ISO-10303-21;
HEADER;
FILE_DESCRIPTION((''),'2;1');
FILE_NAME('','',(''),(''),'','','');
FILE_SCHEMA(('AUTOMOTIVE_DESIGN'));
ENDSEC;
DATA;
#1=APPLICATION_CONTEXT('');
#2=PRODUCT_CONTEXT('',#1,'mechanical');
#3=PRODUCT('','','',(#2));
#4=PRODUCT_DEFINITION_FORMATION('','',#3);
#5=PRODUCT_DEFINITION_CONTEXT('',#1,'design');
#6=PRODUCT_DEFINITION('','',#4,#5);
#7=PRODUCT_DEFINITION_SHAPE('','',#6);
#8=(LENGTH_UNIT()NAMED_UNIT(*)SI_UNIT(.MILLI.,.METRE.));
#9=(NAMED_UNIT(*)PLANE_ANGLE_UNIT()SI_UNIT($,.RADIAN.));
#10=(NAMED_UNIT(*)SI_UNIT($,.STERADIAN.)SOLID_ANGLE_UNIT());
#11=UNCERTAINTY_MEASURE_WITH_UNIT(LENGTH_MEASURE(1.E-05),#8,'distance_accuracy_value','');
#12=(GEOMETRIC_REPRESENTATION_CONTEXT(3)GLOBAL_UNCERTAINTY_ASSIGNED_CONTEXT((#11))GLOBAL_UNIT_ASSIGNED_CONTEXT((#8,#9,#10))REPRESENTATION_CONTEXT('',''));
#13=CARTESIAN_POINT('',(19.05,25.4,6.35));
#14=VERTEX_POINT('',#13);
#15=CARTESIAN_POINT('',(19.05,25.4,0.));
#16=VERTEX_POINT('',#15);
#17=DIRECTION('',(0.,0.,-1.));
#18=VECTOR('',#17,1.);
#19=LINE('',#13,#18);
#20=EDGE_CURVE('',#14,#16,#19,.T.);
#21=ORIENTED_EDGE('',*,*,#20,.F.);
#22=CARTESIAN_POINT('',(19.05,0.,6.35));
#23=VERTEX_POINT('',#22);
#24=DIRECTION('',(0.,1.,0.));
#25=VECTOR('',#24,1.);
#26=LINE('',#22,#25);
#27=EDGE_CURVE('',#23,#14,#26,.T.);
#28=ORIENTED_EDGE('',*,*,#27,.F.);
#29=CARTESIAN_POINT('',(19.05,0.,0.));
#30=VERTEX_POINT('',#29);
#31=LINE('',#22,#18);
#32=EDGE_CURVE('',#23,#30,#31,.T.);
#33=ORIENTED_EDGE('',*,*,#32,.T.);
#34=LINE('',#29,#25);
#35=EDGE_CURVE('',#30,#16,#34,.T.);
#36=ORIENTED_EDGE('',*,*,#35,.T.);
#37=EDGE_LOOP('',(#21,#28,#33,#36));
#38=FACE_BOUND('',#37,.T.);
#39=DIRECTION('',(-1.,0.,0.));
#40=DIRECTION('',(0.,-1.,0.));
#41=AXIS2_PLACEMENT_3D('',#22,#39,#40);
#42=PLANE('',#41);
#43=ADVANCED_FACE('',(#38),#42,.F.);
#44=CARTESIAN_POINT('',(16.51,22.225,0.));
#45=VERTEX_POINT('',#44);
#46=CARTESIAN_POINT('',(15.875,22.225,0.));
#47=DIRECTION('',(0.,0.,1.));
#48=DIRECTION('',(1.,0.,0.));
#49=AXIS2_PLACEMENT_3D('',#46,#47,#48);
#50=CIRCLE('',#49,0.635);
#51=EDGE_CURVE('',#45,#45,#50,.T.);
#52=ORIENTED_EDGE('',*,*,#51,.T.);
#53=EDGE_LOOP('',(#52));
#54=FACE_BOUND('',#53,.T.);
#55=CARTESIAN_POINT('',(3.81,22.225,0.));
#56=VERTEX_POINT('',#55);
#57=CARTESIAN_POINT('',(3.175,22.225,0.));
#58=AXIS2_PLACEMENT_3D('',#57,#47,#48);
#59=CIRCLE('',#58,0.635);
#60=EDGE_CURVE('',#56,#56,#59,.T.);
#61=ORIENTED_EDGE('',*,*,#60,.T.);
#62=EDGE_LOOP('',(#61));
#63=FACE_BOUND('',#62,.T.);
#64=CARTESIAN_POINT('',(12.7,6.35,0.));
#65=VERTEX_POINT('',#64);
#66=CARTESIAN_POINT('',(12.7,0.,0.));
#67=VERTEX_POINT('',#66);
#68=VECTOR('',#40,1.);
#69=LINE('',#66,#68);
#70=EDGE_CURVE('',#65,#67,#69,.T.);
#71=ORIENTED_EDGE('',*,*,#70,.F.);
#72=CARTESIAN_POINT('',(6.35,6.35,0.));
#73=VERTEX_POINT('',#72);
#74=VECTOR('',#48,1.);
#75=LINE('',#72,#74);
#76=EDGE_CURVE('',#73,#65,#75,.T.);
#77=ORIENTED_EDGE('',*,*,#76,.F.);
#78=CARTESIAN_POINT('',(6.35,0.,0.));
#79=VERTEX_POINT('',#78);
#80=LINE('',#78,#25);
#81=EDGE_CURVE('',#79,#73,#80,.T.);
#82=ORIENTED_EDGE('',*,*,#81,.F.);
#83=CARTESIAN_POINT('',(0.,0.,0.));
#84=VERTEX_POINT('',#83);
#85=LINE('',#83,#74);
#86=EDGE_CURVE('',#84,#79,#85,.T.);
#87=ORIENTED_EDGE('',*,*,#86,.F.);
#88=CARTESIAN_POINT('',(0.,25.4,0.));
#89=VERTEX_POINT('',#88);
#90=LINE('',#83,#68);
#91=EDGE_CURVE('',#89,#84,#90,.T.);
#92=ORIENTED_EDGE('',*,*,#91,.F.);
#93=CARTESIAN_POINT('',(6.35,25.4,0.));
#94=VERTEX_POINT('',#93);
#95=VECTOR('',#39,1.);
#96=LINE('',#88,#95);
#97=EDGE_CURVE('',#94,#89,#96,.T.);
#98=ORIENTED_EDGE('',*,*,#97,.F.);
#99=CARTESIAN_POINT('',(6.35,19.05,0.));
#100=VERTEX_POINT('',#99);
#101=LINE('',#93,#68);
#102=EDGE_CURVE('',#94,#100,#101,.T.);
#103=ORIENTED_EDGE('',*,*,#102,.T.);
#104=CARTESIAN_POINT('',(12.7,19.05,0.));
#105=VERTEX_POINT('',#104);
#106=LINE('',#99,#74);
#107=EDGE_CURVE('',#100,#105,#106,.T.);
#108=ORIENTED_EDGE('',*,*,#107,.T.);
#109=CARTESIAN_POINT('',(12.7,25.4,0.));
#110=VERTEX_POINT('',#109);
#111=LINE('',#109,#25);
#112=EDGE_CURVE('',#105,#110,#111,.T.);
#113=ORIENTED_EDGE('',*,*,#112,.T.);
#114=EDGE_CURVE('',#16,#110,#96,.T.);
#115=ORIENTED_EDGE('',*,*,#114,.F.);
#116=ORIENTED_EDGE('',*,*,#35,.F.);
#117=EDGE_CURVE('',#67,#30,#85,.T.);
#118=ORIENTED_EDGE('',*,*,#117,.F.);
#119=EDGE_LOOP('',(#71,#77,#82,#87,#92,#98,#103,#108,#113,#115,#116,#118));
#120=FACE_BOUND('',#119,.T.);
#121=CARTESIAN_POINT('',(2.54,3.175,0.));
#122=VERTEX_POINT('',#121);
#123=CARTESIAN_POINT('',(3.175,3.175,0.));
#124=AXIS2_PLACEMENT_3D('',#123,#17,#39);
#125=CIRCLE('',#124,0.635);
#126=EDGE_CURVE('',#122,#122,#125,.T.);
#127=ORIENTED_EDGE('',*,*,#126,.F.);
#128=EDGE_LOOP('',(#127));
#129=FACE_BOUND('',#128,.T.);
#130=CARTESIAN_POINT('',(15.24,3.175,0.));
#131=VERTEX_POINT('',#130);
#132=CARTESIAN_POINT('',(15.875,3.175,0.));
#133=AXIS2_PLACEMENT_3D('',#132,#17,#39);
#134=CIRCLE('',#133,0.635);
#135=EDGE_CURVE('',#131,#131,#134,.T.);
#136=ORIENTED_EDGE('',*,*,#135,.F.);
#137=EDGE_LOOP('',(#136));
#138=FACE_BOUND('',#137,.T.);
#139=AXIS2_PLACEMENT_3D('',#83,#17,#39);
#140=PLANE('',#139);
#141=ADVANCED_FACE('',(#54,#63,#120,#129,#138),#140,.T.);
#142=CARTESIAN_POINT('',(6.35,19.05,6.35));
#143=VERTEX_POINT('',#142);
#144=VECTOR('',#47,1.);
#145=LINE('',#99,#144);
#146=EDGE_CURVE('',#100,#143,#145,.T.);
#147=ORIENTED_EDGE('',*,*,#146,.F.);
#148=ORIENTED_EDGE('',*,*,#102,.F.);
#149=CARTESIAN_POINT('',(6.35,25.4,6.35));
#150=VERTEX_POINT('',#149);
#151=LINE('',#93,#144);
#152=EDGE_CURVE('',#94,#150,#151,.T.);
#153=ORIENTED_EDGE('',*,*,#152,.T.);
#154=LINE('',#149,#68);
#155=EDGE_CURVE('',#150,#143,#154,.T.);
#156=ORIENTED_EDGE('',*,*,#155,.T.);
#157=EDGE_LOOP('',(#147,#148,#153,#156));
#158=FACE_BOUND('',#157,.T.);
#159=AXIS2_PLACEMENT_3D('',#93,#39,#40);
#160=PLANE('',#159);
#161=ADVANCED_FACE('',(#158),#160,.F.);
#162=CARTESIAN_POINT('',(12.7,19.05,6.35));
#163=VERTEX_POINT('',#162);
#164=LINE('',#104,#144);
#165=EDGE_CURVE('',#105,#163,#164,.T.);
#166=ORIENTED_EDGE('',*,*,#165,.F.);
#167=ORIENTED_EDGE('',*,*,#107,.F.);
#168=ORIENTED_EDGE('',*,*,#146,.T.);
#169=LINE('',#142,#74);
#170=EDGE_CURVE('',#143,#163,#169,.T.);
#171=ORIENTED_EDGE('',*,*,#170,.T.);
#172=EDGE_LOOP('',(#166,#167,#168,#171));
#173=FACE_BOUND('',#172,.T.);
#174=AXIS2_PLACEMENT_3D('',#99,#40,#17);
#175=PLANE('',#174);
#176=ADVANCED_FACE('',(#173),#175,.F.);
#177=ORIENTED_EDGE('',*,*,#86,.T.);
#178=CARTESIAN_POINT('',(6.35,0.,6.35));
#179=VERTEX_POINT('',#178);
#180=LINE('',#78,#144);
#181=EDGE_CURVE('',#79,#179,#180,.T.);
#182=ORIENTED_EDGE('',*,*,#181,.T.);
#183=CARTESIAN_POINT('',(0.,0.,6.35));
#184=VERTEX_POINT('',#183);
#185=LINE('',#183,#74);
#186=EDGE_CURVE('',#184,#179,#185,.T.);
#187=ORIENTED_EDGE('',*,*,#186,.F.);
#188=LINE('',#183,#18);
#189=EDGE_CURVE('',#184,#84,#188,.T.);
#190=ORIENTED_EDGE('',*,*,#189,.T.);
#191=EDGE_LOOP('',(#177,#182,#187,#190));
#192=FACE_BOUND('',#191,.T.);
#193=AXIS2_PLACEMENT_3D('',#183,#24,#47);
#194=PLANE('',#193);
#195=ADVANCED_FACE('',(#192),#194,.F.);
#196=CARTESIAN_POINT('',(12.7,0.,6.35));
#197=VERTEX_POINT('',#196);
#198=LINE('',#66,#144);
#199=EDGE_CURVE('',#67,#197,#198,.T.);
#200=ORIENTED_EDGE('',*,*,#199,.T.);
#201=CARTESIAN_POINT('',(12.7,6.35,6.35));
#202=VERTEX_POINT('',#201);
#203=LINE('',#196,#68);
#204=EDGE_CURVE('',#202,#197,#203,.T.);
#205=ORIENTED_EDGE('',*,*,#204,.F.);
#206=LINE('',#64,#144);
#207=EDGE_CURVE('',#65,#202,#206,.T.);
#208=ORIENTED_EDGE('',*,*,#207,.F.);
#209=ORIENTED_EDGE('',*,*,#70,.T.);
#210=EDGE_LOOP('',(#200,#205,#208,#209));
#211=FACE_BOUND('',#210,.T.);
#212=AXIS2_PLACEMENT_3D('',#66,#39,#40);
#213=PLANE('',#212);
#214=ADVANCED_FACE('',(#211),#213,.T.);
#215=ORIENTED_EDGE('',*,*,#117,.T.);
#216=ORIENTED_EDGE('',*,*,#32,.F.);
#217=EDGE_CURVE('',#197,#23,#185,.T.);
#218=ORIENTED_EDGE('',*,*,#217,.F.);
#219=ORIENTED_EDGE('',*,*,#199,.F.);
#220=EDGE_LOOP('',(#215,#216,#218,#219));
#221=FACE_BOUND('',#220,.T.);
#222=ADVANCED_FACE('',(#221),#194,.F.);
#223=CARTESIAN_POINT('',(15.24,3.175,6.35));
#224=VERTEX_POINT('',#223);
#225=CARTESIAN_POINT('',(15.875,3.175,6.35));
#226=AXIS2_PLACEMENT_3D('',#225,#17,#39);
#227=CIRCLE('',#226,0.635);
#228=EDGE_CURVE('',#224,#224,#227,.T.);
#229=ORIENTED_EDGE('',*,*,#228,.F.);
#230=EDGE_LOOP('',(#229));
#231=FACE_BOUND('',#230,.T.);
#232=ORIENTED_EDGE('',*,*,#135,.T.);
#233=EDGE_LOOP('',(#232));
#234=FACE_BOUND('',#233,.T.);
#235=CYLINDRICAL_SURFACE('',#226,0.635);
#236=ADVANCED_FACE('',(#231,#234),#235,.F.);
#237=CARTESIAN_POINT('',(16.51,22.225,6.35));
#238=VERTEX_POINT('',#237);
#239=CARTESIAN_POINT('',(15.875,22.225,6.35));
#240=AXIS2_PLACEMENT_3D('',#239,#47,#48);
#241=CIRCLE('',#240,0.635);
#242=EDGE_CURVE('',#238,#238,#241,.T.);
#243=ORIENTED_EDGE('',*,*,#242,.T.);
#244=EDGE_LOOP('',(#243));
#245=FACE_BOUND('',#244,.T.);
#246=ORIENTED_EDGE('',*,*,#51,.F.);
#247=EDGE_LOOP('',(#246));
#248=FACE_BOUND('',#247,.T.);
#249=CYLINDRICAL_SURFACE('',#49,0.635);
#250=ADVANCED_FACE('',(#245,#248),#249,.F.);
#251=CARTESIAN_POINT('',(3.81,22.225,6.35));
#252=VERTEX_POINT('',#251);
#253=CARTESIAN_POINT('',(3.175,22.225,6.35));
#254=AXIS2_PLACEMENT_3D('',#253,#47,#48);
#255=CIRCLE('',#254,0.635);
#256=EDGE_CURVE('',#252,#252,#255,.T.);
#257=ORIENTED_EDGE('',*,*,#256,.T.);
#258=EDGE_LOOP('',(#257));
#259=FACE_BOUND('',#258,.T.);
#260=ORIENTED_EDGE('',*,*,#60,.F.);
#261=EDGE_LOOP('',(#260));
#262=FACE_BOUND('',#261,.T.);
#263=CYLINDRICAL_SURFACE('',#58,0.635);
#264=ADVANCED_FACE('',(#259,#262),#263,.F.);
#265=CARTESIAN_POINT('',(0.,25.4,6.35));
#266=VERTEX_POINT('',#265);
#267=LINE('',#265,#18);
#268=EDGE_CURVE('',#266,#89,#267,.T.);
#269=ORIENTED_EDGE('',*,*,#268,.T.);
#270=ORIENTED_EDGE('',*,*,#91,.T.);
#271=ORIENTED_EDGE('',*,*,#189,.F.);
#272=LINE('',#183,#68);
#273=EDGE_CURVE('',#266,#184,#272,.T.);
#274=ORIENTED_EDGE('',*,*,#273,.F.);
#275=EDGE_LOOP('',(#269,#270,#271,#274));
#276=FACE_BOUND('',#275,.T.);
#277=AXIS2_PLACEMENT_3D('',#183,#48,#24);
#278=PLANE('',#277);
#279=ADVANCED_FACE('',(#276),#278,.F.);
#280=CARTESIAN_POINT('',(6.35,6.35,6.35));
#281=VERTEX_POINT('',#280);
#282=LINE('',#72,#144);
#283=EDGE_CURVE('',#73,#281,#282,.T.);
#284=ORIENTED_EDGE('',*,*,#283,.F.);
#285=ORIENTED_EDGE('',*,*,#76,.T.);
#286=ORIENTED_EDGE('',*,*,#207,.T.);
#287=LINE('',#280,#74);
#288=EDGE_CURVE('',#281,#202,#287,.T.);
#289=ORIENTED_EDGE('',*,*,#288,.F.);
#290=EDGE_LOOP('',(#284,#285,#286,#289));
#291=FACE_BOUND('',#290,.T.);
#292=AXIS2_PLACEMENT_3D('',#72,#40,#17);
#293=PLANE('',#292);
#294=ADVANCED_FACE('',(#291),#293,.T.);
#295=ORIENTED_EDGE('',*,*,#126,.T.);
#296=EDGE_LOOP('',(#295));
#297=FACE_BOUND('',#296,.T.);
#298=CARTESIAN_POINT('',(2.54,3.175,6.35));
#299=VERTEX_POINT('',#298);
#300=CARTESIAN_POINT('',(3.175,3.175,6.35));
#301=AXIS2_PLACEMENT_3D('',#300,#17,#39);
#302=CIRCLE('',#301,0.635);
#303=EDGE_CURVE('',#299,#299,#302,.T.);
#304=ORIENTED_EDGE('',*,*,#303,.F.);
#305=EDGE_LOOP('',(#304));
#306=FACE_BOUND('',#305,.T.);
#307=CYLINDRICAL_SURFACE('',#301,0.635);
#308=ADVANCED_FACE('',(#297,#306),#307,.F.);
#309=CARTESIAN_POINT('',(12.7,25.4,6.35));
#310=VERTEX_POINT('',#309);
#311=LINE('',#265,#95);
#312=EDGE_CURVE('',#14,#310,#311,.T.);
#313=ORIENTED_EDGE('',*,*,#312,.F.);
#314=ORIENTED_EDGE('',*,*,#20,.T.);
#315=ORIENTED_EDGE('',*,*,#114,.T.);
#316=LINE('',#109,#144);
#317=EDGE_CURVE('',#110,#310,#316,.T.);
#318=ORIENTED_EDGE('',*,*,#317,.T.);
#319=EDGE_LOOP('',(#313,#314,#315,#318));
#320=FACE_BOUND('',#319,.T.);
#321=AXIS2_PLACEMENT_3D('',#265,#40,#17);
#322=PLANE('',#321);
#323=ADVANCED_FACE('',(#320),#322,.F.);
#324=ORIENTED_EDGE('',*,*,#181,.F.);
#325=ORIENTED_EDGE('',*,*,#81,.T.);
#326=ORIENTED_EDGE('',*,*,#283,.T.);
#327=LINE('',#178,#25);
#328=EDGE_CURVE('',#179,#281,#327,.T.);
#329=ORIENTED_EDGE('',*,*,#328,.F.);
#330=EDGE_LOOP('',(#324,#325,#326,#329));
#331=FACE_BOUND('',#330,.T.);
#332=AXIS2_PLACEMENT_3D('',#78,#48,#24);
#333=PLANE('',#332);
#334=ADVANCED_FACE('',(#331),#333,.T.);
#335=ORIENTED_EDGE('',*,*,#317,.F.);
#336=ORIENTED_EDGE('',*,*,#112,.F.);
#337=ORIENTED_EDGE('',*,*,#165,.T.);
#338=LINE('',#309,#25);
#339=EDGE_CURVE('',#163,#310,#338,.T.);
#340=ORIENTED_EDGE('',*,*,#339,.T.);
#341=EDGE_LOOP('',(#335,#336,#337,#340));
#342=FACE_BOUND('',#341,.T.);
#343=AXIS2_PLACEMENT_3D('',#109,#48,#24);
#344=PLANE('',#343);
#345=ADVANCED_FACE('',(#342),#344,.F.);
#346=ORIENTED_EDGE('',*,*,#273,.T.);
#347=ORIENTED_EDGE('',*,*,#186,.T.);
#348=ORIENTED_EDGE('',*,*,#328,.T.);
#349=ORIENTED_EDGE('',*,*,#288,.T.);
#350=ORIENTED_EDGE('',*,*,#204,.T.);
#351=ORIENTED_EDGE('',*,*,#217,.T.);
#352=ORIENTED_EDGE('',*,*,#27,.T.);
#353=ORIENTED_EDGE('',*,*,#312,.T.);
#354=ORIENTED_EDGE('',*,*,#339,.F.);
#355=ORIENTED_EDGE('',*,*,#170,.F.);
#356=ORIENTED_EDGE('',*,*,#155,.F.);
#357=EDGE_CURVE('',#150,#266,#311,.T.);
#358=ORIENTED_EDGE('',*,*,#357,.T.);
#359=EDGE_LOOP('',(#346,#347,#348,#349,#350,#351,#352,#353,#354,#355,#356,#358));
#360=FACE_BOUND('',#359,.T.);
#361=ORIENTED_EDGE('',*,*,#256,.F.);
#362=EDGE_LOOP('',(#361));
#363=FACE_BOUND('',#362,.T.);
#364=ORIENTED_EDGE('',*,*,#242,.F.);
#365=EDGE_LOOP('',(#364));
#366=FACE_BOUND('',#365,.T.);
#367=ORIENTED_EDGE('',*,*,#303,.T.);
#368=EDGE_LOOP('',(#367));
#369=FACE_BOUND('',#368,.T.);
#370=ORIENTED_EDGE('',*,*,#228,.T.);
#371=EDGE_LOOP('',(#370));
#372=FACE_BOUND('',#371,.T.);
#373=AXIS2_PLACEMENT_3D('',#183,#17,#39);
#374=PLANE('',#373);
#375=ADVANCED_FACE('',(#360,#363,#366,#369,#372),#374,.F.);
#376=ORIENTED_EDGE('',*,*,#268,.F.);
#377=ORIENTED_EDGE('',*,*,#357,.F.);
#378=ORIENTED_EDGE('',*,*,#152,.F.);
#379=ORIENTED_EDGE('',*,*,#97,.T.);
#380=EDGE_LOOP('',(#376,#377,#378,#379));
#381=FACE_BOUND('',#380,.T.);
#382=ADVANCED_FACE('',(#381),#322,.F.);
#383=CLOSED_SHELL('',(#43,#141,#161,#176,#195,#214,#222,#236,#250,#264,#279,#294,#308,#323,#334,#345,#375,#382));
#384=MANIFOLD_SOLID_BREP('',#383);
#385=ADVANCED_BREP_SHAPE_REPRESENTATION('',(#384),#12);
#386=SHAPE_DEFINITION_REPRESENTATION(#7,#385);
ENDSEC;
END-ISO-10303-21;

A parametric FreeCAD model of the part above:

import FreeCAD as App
import Part
import Sketcher

V = App.Vector
Q = App.Units.Quantity


def add_polygon(sketch, points):
    """Adds a closed chain of lines whose ends are joined by coincident constraints."""
    first, n = sketch.GeometryCount, len(points)
    for a, b in zip(points, points[1:] + points[:1]):
        sketch.addGeometry(Part.LineSegment(App.Vector(*a, 0), App.Vector(*b, 0)), False)
    for i in range(n):
        sketch.addConstraint(Sketcher.Constraint("Coincident", first + i, 2, first + (i + 1) % n, 1))

doc = App.newDocument("Part")
body = doc.addObject("PartDesign::Body", "Body")

sketch1 = body.newObject("Sketcher::SketchObject", "Sketch")
sketch1.AttachmentSupport = (doc.getObject("XY_Plane"), [""])
sketch1.MapMode = "FlatFace"
add_polygon(sketch1, [(0, 25), (0, 0), (19, 0), (19, 25)])
sketch1.addConstraint([
    Sketcher.Constraint("Vertical", 0),
    Sketcher.Constraint("Horizontal", 1),
    Sketcher.Constraint("Vertical", 2),
    Sketcher.Constraint("Horizontal", 3),
    Sketcher.Constraint("Coincident", 0, 2, -1, 1),
    Sketcher.Constraint("DistanceY", 0, 2, 0, 1, Q("1 in")),
    Sketcher.Constraint("DistanceX", 1, 1, 1, 2, Q("0.75 in")),
])
pad1 = body.newObject("PartDesign::Pad", "Pad")
pad1.Profile = sketch1
pad1.Length = Q("0.25 in")

sketch2 = body.newObject("Sketcher::SketchObject", "Sketch001")
sketch2.AttachmentSupport = (doc.getObject("XY_Plane"), [""])
sketch2.MapMode = "FlatFace"
sketch2.AttachmentOffset = App.Placement(V(0, 0, 0.25 * 25.4), App.Rotation())
add_polygon(sketch2, [(6, 25), (6, 19), (13, 19), (13, 25)])
sketch2.addConstraint([
    Sketcher.Constraint("Vertical", 0),
    Sketcher.Constraint("Horizontal", 1),
    Sketcher.Constraint("Vertical", 2),
    Sketcher.Constraint("Horizontal", 3),
    Sketcher.Constraint("Equal", 3, 0),
    Sketcher.Constraint("DistanceY", -1, 1, 2, 2, Q("1 in")),
    Sketcher.Constraint("DistanceX", 1, 1, 1, 2, Q("0.25 in")),
    Sketcher.Constraint("DistanceX", -1, 1, 1, 2, Q("0.5 in")),
])
pocket1 = body.newObject("PartDesign::Pocket", "Pocket")
pocket1.Profile = sketch2
pocket1.Type = "ThroughAll"
doc.recompute()

datumplane = body.newObject("PartDesign::Plane", "DatumPlane")
datumplane.AttachmentSupport = (doc.getObject("XZ_Plane"), [""])
datumplane.MapMode = "FlatFace"
datumplane.AttachmentOffset = App.Placement(V(0, 0, -0.5 * 25.4), App.Rotation())
mirrored = body.newObject("PartDesign::Mirrored", "Mirrored")
mirrored.Originals = [pocket1]
mirrored.MirrorPlane = (datumplane, [""])
body.Tip = mirrored

sketch3 = body.newObject("Sketcher::SketchObject", "Sketch002")
sketch3.AttachmentSupport = (doc.getObject("XY_Plane"), [""])
sketch3.MapMode = "FlatFace"
sketch3.AttachmentOffset = App.Placement(V(0, 0, 0.25 * 25.4), App.Rotation())
sketch3.addGeometry([
    Part.Circle(V(3.2, 22.2, 0), V(0, 0, 1), 0.6),
    Part.Circle(V(15.9, 22.2, 0), V(0, 0, 1), 0.6),
], False)
sketch3.addConstraint([
    Sketcher.Constraint("Equal", 0, 1),
    Sketcher.Constraint("Horizontal", 0, 3, 1, 3),
    Sketcher.Constraint("Diameter", 0, Q("0.05 in")),
    Sketcher.Constraint("DistanceX", 0, 3, 1, 3, Q("0.5 in")),
    Sketcher.Constraint("DistanceX", -1, 1, 0, 3, Q("0.125 in")),
    Sketcher.Constraint("DistanceY", -1, 1, 0, 3, Q("0.875 in")),
])
pocket2 = body.newObject("PartDesign::Pocket", "Pocket001")
pocket2.Profile = sketch3
pocket2.Type = "ThroughAll"

sketch4 = body.newObject("Sketcher::SketchObject", "Sketch003")
sketch4.AttachmentSupport = (doc.getObject("XY_Plane"), [""])
sketch4.MapMode = "FlatFace"
sketch4.addGeometry([
    Part.Circle(V(15.9, 3.2, 0), V(0, 0, 1), 0.6),
    Part.Circle(V(3.2, 3.2, 0), V(0, 0, 1), 0.6),
], False)
sketch4.addConstraint([
    Sketcher.Constraint("Equal", 0, 1),
    Sketcher.Constraint("Horizontal", 0, 3, 1, 3),
    Sketcher.Constraint("Diameter", 0, Q("0.05 in")),
    Sketcher.Constraint("DistanceX", 1, 3, 0, 3, Q("0.5 in")),
    Sketcher.Constraint("DistanceX", -1, 1, 0, 3, Q("0.625 in")),
    Sketcher.Constraint("DistanceY", -1, 1, 0, 3, Q("0.125 in")),
])
pocket3 = body.newObject("PartDesign::Pocket", "Pocket002")
pocket3.Profile = sketch4
pocket3.Type = "ThroughAll"
pocket3.Reversed = True

doc.recompute()
